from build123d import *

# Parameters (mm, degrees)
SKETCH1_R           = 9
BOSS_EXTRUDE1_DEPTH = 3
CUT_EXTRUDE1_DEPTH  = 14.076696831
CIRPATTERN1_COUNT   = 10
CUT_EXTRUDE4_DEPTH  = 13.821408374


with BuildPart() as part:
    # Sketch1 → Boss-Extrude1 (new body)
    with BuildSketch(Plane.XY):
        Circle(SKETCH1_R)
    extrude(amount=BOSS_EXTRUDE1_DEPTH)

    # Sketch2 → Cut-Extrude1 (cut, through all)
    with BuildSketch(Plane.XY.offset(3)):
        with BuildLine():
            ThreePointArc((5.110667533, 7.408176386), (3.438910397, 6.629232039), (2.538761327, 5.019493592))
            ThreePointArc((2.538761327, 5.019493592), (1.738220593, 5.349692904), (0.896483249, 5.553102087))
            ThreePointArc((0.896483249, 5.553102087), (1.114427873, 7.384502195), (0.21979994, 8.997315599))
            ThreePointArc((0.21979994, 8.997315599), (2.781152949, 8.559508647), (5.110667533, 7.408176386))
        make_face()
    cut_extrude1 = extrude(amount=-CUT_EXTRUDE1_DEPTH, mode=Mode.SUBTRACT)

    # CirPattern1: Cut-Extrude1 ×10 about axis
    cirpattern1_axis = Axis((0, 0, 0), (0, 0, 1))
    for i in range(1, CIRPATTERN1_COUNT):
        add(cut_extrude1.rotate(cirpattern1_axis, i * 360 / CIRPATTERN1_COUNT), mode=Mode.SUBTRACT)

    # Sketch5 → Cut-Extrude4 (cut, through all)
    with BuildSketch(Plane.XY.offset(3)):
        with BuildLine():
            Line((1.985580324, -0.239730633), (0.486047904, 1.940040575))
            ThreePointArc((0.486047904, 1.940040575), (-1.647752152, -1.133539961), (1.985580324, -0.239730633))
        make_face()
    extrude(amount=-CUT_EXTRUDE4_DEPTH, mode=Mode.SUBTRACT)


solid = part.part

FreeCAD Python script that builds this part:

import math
import FreeCAD as App
import Part
import Sketcher

V = App.Vector
Q = App.Units.Quantity

doc = App.newDocument("Part")
body = doc.addObject("PartDesign::Body", "Body")

# Sketch on XY plane
sketch1 = body.newObject("Sketcher::SketchObject", "Sketch")
sketch1.AttachmentSupport = (doc.getObject("XY_Plane"), [""])
sketch1.MapMode = "FlatFace"
sketch1.addGeometry(Part.Circle(V(0, 0, 0), V(0, 0, 1), 9), False)
sketch1.addConstraint(Sketcher.Constraint("Coincident", 0, 3, -1, 1))
sketch1.addConstraint(Sketcher.Constraint("Diameter", 0, Q("18 mm")))
pad1 = body.newObject("PartDesign::Pad", "Pad")
pad1.Profile = sketch1
pad1.Length = 3

# Sketch on XY plane
sketch2 = body.newObject("Sketcher::SketchObject", "Sketch001")
sketch2.AttachmentSupport = (doc.getObject("XY_Plane"), [""])
sketch2.MapMode = "FlatFace"
sketch2.AttachmentOffset = App.Placement(V(0, 0, 3), App.Rotation())
sketch2.addGeometry(Part.ArcOfCircle(Part.Circle(V(5.5, 4.4, 0), V(0, 0, 1), 3), math.radians(97), math.radians(169)), False)
sketch2.addGeometry(Part.ArcOfCircle(Part.Circle(V(0, 0, 0), V(0, 0, 1), 9), math.radians(55), math.radians(89)), False)
sketch2.addGeometry(Part.ArcOfCircle(Part.Circle(V(-1.8, 6.8, 0), V(0, 0, 1), 3), math.radians(-25), math.radians(47)), False)
sketch2.addGeometry(Part.ArcOfCircle(Part.Circle(V(0, 0, 0), V(0, 0, 1), 5.6), math.radians(63.17), math.radians(80.83)), False)
sketch2.addConstraint(Sketcher.Constraint("Coincident", 0, 1, 1, 1))
sketch2.addConstraint(Sketcher.Constraint("Coincident", 1, 2, 2, 2))
sketch2.addConstraint(Sketcher.Constraint("Coincident", 2, 1, 3, 2))
sketch2.addConstraint(Sketcher.Constraint("Coincident", 3, 1, 0, 2))
sketch2.addConstraint(Sketcher.Constraint("Coincident", 1, 3, -1, 1))
sketch2.addConstraint(Sketcher.Constraint("Coincident", 3, 3, -1, 1))
sketch2.addConstraint(Sketcher.Constraint("Equal", 0, 2))
sketch2.addConstraint(Sketcher.Constraint("Radius", 0, Q("3 mm")))
sketch2.addConstraint(Sketcher.Constraint("Radius", 1, Q("9 mm")))
sketch2.addConstraint(Sketcher.Constraint("Radius", 3, Q("5.625 mm")))
sketch2.addConstraint(Sketcher.Constraint("DistanceX", -1, 1, 1, 2, Q("0.2198 mm")))
sketch2.addConstraint(Sketcher.Constraint("DistanceY", -1, 1, 2, 3, Q("6.80615 mm")))
sketch2.addConstraint(Sketcher.Constraint("DistanceX", -1, 1, 3, 1, Q("2.538761 mm")))
sketch2.addConstraint(Sketcher.Constraint("DistanceX", 2, 3, 0, 3, Q("7.309782 mm")))
pocket1 = body.newObject("PartDesign::Pocket", "Pocket")
pocket1.Profile = sketch2
pocket1.Type = "ThroughAll"
doc.recompute()

polarpattern = body.newObject("PartDesign::PolarPattern", "PolarPattern")
polarpattern.Originals = [pocket1]
polarpattern.Axis = (doc.getObject("Z_Axis"), [""])
polarpattern.Angle = 360
polarpattern.Occurrences = 10
body.Tip = polarpattern

# Sketch on XY plane
sketch3 = body.newObject("Sketcher::SketchObject", "Sketch002")
sketch3.AttachmentSupport = (doc.getObject("XY_Plane"), [""])
sketch3.MapMode = "FlatFace"
sketch3.AttachmentOffset = App.Placement(V(0, 0, 3), App.Rotation())
sketch3.addGeometry(Part.LineSegment(V(2, -0.2, 0), V(0.5, 1.9, 0)), False)
sketch3.addGeometry(Part.ArcOfCircle(Part.Circle(V(0, 0, 0), V(0, 0, 1), 2), math.radians(76), math.radians(353)), False)
sketch3.addConstraint(Sketcher.Constraint("Coincident", 0, 1, 1, 2))
sketch3.addConstraint(Sketcher.Constraint("Coincident", 1, 1, 0, 2))
sketch3.addConstraint(Sketcher.Constraint("Coincident", 1, 3, -1, 1))
sketch3.addConstraint(Sketcher.Constraint("Radius", 1, Q("2 mm")))
sketch3.addConstraint(Sketcher.Constraint("Distance", 0, Q("2.645751 mm")))
sketch3.addConstraint(Sketcher.Constraint("DistanceX", -1, 1, 0, 1, Q("1.98558 mm")))
pocket2 = body.newObject("PartDesign::Pocket", "Pocket001")
pocket2.Profile = sketch3
pocket2.Type = "ThroughAll"

doc.recompute()
